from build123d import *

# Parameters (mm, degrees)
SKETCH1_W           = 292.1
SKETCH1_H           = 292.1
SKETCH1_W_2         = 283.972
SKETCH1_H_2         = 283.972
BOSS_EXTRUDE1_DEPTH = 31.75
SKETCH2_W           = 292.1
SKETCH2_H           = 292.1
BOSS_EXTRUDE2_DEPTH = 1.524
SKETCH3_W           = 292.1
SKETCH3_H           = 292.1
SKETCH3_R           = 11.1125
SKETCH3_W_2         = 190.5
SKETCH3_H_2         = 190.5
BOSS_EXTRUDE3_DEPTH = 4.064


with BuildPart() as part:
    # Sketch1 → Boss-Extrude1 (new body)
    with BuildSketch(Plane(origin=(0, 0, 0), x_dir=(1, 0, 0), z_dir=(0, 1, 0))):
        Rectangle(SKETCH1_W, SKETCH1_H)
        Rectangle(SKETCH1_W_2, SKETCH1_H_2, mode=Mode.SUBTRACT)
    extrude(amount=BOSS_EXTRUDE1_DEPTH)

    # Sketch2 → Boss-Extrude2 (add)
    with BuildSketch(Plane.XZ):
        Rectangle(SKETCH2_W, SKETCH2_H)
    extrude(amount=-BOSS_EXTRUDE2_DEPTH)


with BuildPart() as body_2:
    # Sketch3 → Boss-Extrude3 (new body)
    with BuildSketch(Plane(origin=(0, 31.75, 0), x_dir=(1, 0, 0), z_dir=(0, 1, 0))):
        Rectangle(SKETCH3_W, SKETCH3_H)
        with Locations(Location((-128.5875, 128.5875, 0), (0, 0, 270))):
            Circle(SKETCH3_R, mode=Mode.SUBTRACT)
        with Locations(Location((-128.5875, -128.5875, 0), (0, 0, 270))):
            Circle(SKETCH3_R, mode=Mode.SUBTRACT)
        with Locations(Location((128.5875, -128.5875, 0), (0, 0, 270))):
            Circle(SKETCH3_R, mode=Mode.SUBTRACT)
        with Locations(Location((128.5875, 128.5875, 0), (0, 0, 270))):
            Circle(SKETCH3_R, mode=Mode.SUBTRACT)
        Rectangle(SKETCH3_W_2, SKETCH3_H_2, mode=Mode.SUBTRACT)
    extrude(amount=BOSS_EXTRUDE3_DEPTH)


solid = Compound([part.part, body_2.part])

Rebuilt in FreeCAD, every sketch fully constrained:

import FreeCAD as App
import Part
import Sketcher
from FreeCAD import Vector
Q = App.Units.Quantity

doc = App.newDocument("Part")
body = doc.addObject("PartDesign::Body", "Body")

sketch1 = body.newObject("Sketcher::SketchObject", "Sketch")
sketch1.AttachmentSupport = (doc.getObject("XZ_Plane"), [""])
sketch1.MapMode = "FlatFace"
sketch1.addGeometry([
    Part.LineSegment(Vector(-146, -146, 0), Vector(-146, 146, 0)),
    Part.LineSegment(Vector(-146, 146, 0), Vector(146, 146, 0)),
    Part.LineSegment(Vector(146, 146, 0), Vector(146, -146, 0)),
    Part.LineSegment(Vector(146, -146, 0), Vector(-146, -146, 0)),
    Part.LineSegment(Vector(142, 142, 0), Vector(-142, 142, 0)),
    Part.LineSegment(Vector(-142, 142, 0), Vector(-142, -142, 0)),
    Part.LineSegment(Vector(-142, -142, 0), Vector(142, -142, 0)),
    Part.LineSegment(Vector(142, -142, 0), Vector(142, 142, 0)),
], False)
sketch1.addConstraint([
    Sketcher.Constraint("Coincident", 0, 2, 1, 1),
    Sketcher.Constraint("Coincident", 1, 2, 2, 1),
    Sketcher.Constraint("Coincident", 2, 2, 3, 1),
    Sketcher.Constraint("Coincident", 3, 2, 0, 1),
    Sketcher.Constraint("Coincident", 4, 2, 5, 1),
    Sketcher.Constraint("Coincident", 5, 2, 6, 1),
    Sketcher.Constraint("Coincident", 6, 2, 7, 1),
    Sketcher.Constraint("Coincident", 7, 2, 4, 1),
    Sketcher.Constraint("Vertical", 0),
    Sketcher.Constraint("Horizontal", 1),
    Sketcher.Constraint("Vertical", 2),
    Sketcher.Constraint("Horizontal", 3),
    Sketcher.Constraint("Horizontal", 4),
    Sketcher.Constraint("Vertical", 5),
    Sketcher.Constraint("Horizontal", 6),
    Sketcher.Constraint("Vertical", 7),
    Sketcher.Constraint("Symmetric", 0, 2, 2, 2, -1, 1),
    Sketcher.Constraint("Symmetric", 4, 2, 6, 2, -1, 1),
    Sketcher.Constraint("Equal", 3, 0),
    Sketcher.Constraint("Equal", 6, 5),
    Sketcher.Constraint("DistanceX", 1, 1, 1, 2, Q("11.5 in")),
    Sketcher.Constraint("DistanceX", 4, 2, 4, 1, Q("11.18 in")),
])
pad1 = body.newObject("PartDesign::Pad", "Pad")
pad1.Profile = sketch1
pad1.Length = Q("1.25 in")
pad1.Reversed = True

sketch2 = body.newObject("Sketcher::SketchObject", "Sketch001")
sketch2.AttachmentSupport = (doc.getObject("XZ_Plane"), [""])
sketch2.MapMode = "FlatFace"
sketch2.addGeometry([
    Part.LineSegment(Vector(-146, 146, 0), Vector(-146, -146, 0)),
    Part.LineSegment(Vector(-146, -146, 0), Vector(146, -146, 0)),
    Part.LineSegment(Vector(146, -146, 0), Vector(146, 146, 0)),
    Part.LineSegment(Vector(146, 146, 0), Vector(-146, 146, 0)),
], False)
sketch2.addConstraint([
    Sketcher.Constraint("Coincident", 0, 2, 1, 1),
    Sketcher.Constraint("Coincident", 1, 2, 2, 1),
    Sketcher.Constraint("Coincident", 2, 2, 3, 1),
    Sketcher.Constraint("Coincident", 3, 2, 0, 1),
    Sketcher.Constraint("Vertical", 0),
    Sketcher.Constraint("Horizontal", 1),
    Sketcher.Constraint("Vertical", 2),
    Sketcher.Constraint("Horizontal", 3),
    Sketcher.Constraint("Symmetric", 0, 2, 2, 2, -1, 1),
    Sketcher.Constraint("Equal", 3, 0),
    Sketcher.Constraint("DistanceX", 1, 1, 1, 2, Q("11.5 in")),
])
pad2 = body.newObject("PartDesign::Pad", "Pad001")
pad2.Profile = sketch2
pad2.Length = Q("0.06 in")
pad2.Reversed = True
body2 = doc.addObject("PartDesign::Body", "Body001")

sketch3 = body2.newObject("Sketcher::SketchObject", "Sketch002")
sketch3.AttachmentSupport = (doc.getObject("XZ_Plane001"), [""])
sketch3.MapMode = "FlatFace"
sketch3.AttachmentOffset = App.Placement(Vector(0, 0, -1.25 * 25.4), App.Rotation())
sketch3.addGeometry([
    Part.LineSegment(Vector(-146, -146, 0), Vector(-146, 146, 0)),
    Part.LineSegment(Vector(-146, 146, 0), Vector(146, 146, 0)),
    Part.LineSegment(Vector(146, 146, 0), Vector(146, -146, 0)),
    Part.LineSegment(Vector(146, -146, 0), Vector(-146, -146, 0)),
    Part.Circle(Vector(-129, 129, 0), Vector(0, 0, 1), 11),
    Part.Circle(Vector(129, 129, 0), Vector(0, 0, 1), 11),
    Part.Circle(Vector(-129, -129, 0), Vector(0, 0, 1), 11),
    Part.LineSegment(Vector(95, 95, 0), Vector(-95, 95, 0)),
    Part.LineSegment(Vector(-95, 95, 0), Vector(-95, -95, 0)),
    Part.LineSegment(Vector(-95, -95, 0), Vector(95, -95, 0)),
    Part.LineSegment(Vector(95, -95, 0), Vector(95, 95, 0)),
    Part.Circle(Vector(129, -129, 0), Vector(0, 0, 1), 11),
], False)
sketch3.addConstraint([
    Sketcher.Constraint("Coincident", 0, 2, 1, 1),
    Sketcher.Constraint("Coincident", 1, 2, 2, 1),
    Sketcher.Constraint("Coincident", 2, 2, 3, 1),
    Sketcher.Constraint("Coincident", 3, 2, 0, 1),
    Sketcher.Constraint("Coincident", 7, 2, 8, 1),
    Sketcher.Constraint("Coincident", 8, 2, 9, 1),
    Sketcher.Constraint("Coincident", 9, 2, 10, 1),
    Sketcher.Constraint("Coincident", 10, 2, 7, 1),
    Sketcher.Constraint("Vertical", 0),
    Sketcher.Constraint("Horizontal", 1),
    Sketcher.Constraint("Vertical", 2),
    Sketcher.Constraint("Horizontal", 3),
    Sketcher.Constraint("Horizontal", 7),
    Sketcher.Constraint("Vertical", 8),
    Sketcher.Constraint("Horizontal", 9),
    Sketcher.Constraint("Vertical", 10),
    Sketcher.Constraint("Equal", 4, 5),
    Sketcher.Constraint("Equal", 5, 6),
    Sketcher.Constraint("Equal", 6, 11),
    Sketcher.Constraint("Symmetric", 5, 3, 6, 3, -1, 1),
    Sketcher.Constraint("Symmetric", 4, 3, 11, 3, -1, 1),
    Sketcher.Constraint("Symmetric", 0, 2, 2, 2, -1, 1),
    Sketcher.Constraint("Symmetric", 7, 2, 9, 2, -1, 1),
    Sketcher.Constraint("Symmetric", 4, 3, 5, 3, -2),
    Sketcher.Constraint("Equal", 3, 0),
    Sketcher.Constraint("Equal", 9, 8),
    Sketcher.Constraint("Diameter", 4, Q("0.875 in")),
    Sketcher.Constraint("DistanceX", 1, 1, 1, 2, Q("11.5 in")),
    Sketcher.Constraint("DistanceX", 7, 2, 7, 1, Q("7.5 in")),
    Sketcher.Constraint("DistanceX", 4, 3, -1, 1, Q("5.0625 in")),
    Sketcher.Constraint("DistanceY", -1, 1, 4, 3, Q("5.0625 in")),
])
pad3 = body2.newObject("PartDesign::Pad", "Pad002")
pad3.Profile = sketch3
pad3.Length = Q("0.16 in")
pad3.Reversed = True

doc.recompute()
